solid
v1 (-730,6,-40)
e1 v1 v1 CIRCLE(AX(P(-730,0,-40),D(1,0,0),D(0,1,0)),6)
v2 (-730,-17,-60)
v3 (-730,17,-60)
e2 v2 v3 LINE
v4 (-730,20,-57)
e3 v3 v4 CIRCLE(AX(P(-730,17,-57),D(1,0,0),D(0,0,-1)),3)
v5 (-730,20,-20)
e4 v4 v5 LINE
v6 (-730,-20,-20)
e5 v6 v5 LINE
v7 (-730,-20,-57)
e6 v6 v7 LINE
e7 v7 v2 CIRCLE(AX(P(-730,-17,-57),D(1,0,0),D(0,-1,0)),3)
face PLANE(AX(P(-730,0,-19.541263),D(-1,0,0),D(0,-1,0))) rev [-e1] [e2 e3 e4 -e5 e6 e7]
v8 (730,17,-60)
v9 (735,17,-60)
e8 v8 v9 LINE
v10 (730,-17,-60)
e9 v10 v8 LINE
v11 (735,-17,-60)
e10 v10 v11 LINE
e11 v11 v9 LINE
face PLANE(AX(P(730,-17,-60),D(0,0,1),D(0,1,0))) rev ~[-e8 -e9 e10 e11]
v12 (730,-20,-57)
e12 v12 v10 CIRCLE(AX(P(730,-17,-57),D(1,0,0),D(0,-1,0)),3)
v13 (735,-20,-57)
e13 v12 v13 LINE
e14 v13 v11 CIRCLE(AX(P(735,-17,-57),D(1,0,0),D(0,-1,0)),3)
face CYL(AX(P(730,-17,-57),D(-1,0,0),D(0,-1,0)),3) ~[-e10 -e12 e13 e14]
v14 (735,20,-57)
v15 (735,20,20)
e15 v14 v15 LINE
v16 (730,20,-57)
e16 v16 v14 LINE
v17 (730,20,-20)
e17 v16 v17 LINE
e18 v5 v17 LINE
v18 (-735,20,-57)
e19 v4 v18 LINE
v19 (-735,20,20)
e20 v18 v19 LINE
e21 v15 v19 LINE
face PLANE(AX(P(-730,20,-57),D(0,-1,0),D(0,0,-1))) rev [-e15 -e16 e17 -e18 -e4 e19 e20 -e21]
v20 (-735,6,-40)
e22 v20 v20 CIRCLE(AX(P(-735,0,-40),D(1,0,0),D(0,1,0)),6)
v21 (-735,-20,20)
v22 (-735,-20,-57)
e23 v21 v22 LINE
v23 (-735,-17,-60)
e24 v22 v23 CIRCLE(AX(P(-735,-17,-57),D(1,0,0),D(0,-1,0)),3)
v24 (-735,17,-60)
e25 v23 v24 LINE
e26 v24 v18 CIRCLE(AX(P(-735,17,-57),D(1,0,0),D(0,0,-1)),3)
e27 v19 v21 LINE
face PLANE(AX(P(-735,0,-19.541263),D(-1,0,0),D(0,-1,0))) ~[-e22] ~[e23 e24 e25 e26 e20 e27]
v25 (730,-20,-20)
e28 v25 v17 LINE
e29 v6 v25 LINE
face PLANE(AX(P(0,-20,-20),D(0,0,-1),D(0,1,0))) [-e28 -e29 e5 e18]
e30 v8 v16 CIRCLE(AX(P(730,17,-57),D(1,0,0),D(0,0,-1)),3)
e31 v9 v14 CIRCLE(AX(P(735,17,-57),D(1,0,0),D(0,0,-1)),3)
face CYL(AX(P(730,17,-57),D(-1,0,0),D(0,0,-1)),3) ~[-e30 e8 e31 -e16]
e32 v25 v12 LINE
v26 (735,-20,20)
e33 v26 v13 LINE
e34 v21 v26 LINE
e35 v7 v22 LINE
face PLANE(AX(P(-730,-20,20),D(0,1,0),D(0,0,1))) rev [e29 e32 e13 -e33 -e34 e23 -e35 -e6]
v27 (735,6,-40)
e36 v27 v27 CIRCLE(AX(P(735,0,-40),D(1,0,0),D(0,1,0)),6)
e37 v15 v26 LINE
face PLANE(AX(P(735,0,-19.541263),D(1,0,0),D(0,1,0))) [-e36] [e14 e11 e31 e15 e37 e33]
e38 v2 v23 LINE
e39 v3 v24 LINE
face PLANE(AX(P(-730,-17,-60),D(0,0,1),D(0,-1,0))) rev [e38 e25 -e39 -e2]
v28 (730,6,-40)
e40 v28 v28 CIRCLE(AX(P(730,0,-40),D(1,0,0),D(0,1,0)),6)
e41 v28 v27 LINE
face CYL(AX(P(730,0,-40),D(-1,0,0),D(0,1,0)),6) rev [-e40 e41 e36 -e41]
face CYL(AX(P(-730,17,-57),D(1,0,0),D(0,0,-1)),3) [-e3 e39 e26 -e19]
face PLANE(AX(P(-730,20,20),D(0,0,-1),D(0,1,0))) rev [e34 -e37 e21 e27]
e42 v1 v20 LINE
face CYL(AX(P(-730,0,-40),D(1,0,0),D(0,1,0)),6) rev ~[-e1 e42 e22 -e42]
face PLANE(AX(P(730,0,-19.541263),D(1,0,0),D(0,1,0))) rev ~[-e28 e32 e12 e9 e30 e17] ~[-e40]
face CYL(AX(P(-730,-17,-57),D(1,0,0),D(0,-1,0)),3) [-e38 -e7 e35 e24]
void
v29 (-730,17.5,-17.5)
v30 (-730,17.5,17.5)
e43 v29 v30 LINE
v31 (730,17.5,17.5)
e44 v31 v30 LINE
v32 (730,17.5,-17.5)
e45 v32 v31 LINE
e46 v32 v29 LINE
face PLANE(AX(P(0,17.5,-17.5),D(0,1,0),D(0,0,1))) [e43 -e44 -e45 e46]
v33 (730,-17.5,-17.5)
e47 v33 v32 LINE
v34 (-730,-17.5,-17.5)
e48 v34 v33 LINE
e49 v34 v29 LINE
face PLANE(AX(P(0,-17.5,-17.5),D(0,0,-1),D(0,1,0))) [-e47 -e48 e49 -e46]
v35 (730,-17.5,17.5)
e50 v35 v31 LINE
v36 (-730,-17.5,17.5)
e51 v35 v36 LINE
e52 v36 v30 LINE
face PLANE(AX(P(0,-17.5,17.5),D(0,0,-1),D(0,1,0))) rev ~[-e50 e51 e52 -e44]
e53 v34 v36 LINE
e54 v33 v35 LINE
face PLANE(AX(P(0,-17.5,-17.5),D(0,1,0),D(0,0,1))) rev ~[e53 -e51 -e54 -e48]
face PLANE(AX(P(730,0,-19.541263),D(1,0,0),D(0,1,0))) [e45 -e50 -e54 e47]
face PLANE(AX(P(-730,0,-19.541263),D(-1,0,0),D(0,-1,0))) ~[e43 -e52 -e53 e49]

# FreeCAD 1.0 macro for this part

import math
import FreeCAD as App
import Part
import Sketcher

V = App.Vector

doc = App.newDocument("Part")
body = doc.addObject("PartDesign::Body", "Body")

sketch1 = doc.addObject("Sketcher::SketchObject", "Sketch")
body.addObject(sketch1)
sketch1.AttachmentSupport = (doc.YZ_Plane, [""])
sketch1.MapMode = "FlatFace"
sketch1.addGeometry([
    Part.LineSegment(V(-20, 20, 0), V(-20, -20, 0)),
    Part.LineSegment(V(-20, -20, 0), V(20, -20, 0)),
    Part.LineSegment(V(20, -20, 0), V(20, 20, 0)),
    Part.LineSegment(V(20, 20, 0), V(-20, 20, 0)),
    Part.LineSegment(V(18, -18, 0), V(-18, -18, 0)),
    Part.LineSegment(V(-18, -18, 0), V(-18, 18, 0)),
    Part.LineSegment(V(-18, 18, 0), V(18, 18, 0)),
    Part.LineSegment(V(18, 18, 0), V(18, -18, 0)),
], False)
sketch1.addConstraint([
    Sketcher.Constraint("Coincident", 0, 2, 1, 1),
    Sketcher.Constraint("Coincident", 1, 2, 2, 1),
    Sketcher.Constraint("Coincident", 2, 2, 3, 1),
    Sketcher.Constraint("Coincident", 3, 2, 0, 1),
    Sketcher.Constraint("Coincident", 4, 2, 5, 1),
    Sketcher.Constraint("Coincident", 5, 2, 6, 1),
    Sketcher.Constraint("Coincident", 6, 2, 7, 1),
    Sketcher.Constraint("Coincident", 7, 2, 4, 1),
    Sketcher.Constraint("Vertical", 0),
    Sketcher.Constraint("Horizontal", 1),
    Sketcher.Constraint("Vertical", 2),
    Sketcher.Constraint("Horizontal", 3),
    Sketcher.Constraint("Horizontal", 4),
    Sketcher.Constraint("Vertical", 5),
    Sketcher.Constraint("Horizontal", 6),
    Sketcher.Constraint("Vertical", 7),
    Sketcher.Constraint("Symmetric", 0, 2, 2, 2, -1, 1),
    Sketcher.Constraint("Symmetric", 4, 2, 6, 2, -1, 1),
    Sketcher.Constraint("Equal", 3, 0),
    Sketcher.Constraint("Equal", 6, 5),
    Sketcher.Constraint("DistanceX", 1, 1, 1, 2, 40.0),
    Sketcher.Constraint("DistanceX", 4, 2, 4, 1, 35.0),
])
pad1 = doc.addObject("PartDesign::Pad", "Pad")
body.addObject(pad1)
pad1.Profile = sketch1
pad1.Length = 1460
pad1.Midplane = True

sketch2 = doc.addObject("Sketcher::SketchObject", "Sketch001")
body.addObject(sketch2)
sketch2.AttachmentSupport = (doc.YZ_Plane, [""])
sketch2.MapMode = "FlatFace"
sketch2.AttachmentOffset = App.Placement(V(0, 0, 730), App.Rotation())
sketch2.addGeometry([
    Part.LineSegment(V(20, 20, 0), V(-20, 20, 0)),
    Part.LineSegment(V(-20, 20, 0), V(-20, -57, 0)),
    Part.ArcOfCircle(Part.Circle(V(-17, -57, 0), V(0, 0, 1), 3), math.radians(180), math.radians(270)),
    Part.LineSegment(V(-17, -60, 0), V(17, -60, 0)),
    Part.ArcOfCircle(Part.Circle(V(17, -57, 0), V(0, 0, 1), 3), math.radians(-90), math.radians(0)),
    Part.LineSegment(V(20, -57, 0), V(20, 20, 0)),
    Part.Circle(V(0, -40, 0), V(0, 0, 1), 6),
], False)
sketch2.addConstraint([
    Sketcher.Constraint("Coincident", 0, 2, 1, 1),
    Sketcher.Constraint("Tangent", 1, 2, 2, 1),
    Sketcher.Constraint("Tangent", 2, 2, 3, 1),
    Sketcher.Constraint("Tangent", 3, 2, 4, 1),
    Sketcher.Constraint("Tangent", 4, 2, 5, 1),
    Sketcher.Constraint("Coincident", 5, 2, 0, 1),
    Sketcher.Constraint("Horizontal", 0),
    Sketcher.Constraint("Vertical", 1),
    Sketcher.Constraint("Horizontal", 3),
    Sketcher.Constraint("Vertical", 5),
    Sketcher.Constraint("Equal", 2, 4),
    Sketcher.Constraint("PointOnObject", 6, 3, -2),
    Sketcher.Constraint("Diameter", 6, 12.0),
    Sketcher.Constraint("Radius", 2, 3.0),
    Sketcher.Constraint("DistanceX", 0, 2, 0, 1, 40.0),
    Sketcher.Constraint("DistanceY", 1, 2, 1, 1, 77.0),
    Sketcher.Constraint("DistanceX", 2, 3, -1, 1, 17.0),
    Sketcher.Constraint("DistanceY", 2, 3, -1, 1, 57.0),
    Sketcher.Constraint("DistanceY", 6, 3, -1, 1, 40.0),
])
pad2 = doc.addObject("PartDesign::Pad", "Pad001")
body.addObject(pad2)
pad2.Profile = sketch2
pad2.Length = 5
body2 = doc.addObject("PartDesign::Body", "Body001")
doc.recompute()

body2.BaseFeature = body
doc.recompute()

mirroring = doc.addObject("Part::Mirroring", "Mirroring")
mirroring.Source = body
mirroring.Base = V(0, 0, 0)
mirroring.Normal = V(1, 0, 0)
body3 = doc.addObject("PartDesign::Body", "Body002")
body3.BaseFeature = mirroring
boolean = doc.addObject("PartDesign::Boolean", "Boolean")
body2.addObject(boolean)
boolean.Type = "Fuse"
boolean.addObjects([body3])
doc.recompute()
mirroring.Visibility = False

doc.recompute()
